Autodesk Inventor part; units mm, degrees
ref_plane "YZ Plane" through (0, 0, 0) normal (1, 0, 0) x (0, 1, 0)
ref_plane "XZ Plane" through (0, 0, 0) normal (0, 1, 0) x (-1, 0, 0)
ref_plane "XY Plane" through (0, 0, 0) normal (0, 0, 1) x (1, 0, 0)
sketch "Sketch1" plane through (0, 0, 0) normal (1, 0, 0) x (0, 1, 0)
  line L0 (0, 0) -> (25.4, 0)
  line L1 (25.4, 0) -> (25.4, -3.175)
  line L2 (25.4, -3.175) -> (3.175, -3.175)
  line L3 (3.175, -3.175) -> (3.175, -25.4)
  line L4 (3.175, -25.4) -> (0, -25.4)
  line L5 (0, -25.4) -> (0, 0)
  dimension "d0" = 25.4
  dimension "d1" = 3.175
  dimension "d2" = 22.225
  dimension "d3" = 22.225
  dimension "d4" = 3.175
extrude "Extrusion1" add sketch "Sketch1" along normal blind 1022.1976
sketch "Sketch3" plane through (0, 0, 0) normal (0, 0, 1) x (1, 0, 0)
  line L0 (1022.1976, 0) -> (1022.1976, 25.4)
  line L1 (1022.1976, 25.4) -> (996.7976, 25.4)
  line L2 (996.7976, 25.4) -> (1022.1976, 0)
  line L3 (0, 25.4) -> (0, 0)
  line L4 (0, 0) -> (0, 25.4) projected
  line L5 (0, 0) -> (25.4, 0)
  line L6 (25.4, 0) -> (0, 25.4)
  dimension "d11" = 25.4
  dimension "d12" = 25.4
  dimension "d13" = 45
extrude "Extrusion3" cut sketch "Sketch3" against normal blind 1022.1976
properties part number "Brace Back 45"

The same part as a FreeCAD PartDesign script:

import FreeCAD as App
import Part
import Sketcher

V = App.Vector
Q = App.Units.Quantity

doc = App.newDocument("Part")
body = doc.addObject("PartDesign::Body", "Body")

# Sketch on YZ plane
sketch1 = body.newObject("Sketcher::SketchObject", "Sketch")
sketch1.AttachmentSupport = (doc.getObject("YZ_Plane"), [""])
sketch1.MapMode = "FlatFace"
sketch1.addGeometry([
    Part.LineSegment(V(25.4, 0, 0), V(0, 0, 0)),  # 0
    Part.LineSegment(V(0, 0, 0), V(0, -25.4, 0)),  # 1
    Part.LineSegment(V(0, -25.4, 0), V(3.2, -25.4, 0)),  # 2
    Part.LineSegment(V(3.2, -25.4, 0), V(3.2, -3.2, 0)),  # 3
    Part.LineSegment(V(3.2, -3.2, 0), V(25.4, -3.2, 0)),  # 4
    Part.LineSegment(V(25.4, -3.2, 0), V(25.4, 0, 0)),  # 5
], False)
sketch1.addConstraint([
    Sketcher.Constraint("Coincident", 0, 2, 1, 1),
    Sketcher.Constraint("Coincident", 1, 2, 2, 1),
    Sketcher.Constraint("Coincident", 2, 2, 3, 1),
    Sketcher.Constraint("Coincident", 3, 2, 4, 1),
    Sketcher.Constraint("Coincident", 4, 2, 5, 1),
    Sketcher.Constraint("Coincident", 5, 2, 0, 1),
    Sketcher.Constraint("Horizontal", 0),
    Sketcher.Constraint("Vertical", 1),
    Sketcher.Constraint("Horizontal", 2),
    Sketcher.Constraint("Vertical", 3),
    Sketcher.Constraint("Horizontal", 4),
    Sketcher.Constraint("Vertical", 5),
    Sketcher.Constraint("Coincident", 0, 2, -1, 1),
    Sketcher.Constraint("Equal", 0, 1),
    Sketcher.Constraint("Equal", 4, 3),
    Sketcher.Constraint("DistanceX", 0, 2, 0, 1, Q("1 in")),
    Sketcher.Constraint("DistanceX", 2, 1, 2, 2, Q("0.125 in")),
])
pad1 = body.newObject("PartDesign::Pad", "Pad")
pad1.Profile = sketch1
pad1.Length = Q("40.244 in")

# Sketch on XY plane
sketch2 = body.newObject("Sketcher::SketchObject", "Sketch001")
sketch2.AttachmentSupport = (doc.getObject("XY_Plane"), [""])
sketch2.MapMode = "FlatFace"
sketch2.addGeometry([
    Part.LineSegment(V(997, 25, 0), V(1022, 0, 0)),  # 0
    Part.LineSegment(V(1022, 0, 0), V(1022, 25, 0)),  # 1
    Part.LineSegment(V(1022, 25, 0), V(997, 25, 0)),  # 2
    Part.LineSegment(V(25, 0, 0), V(0, 25, 0)),  # 3
    Part.LineSegment(V(0, 25, 0), V(0, 0, 0)),  # 4
    Part.LineSegment(V(0, 0, 0), V(25, 0, 0)),  # 5
], False)
sketch2.addConstraint([
    Sketcher.Constraint("Coincident", 0, 2, 1, 1),
    Sketcher.Constraint("Coincident", 1, 2, 2, 1),
    Sketcher.Constraint("Coincident", 2, 2, 0, 1),
    Sketcher.Constraint("Coincident", 3, 2, 4, 1),
    Sketcher.Constraint("Coincident", 4, 2, 5, 1),
    Sketcher.Constraint("Coincident", 5, 2, 3, 1),
    Sketcher.Constraint("Vertical", 1),
    Sketcher.Constraint("Horizontal", 2),
    Sketcher.Constraint("Vertical", 4),
    Sketcher.Constraint("Horizontal", 5),
    Sketcher.Constraint("Coincident", 4, 2, -1, 1),
    Sketcher.Constraint("PointOnObject", 0, 2, -1),
    Sketcher.Constraint("Parallel", 0, 3),
    Sketcher.Constraint("Horizontal", 2, 2, 3, 2),
    Sketcher.Constraint("Equal", 5, 1),
    Sketcher.Constraint("DistanceX", 2, 2, 2, 1, Q("1 in")),
    Sketcher.Constraint("DistanceX", -1, 1, 0, 2, Q("40.244 in")),
])
pocket1 = body.newObject("PartDesign::Pocket", "Pocket")
pocket1.Profile = sketch2
pocket1.Length = Q("40.244 in")

doc.recompute()
